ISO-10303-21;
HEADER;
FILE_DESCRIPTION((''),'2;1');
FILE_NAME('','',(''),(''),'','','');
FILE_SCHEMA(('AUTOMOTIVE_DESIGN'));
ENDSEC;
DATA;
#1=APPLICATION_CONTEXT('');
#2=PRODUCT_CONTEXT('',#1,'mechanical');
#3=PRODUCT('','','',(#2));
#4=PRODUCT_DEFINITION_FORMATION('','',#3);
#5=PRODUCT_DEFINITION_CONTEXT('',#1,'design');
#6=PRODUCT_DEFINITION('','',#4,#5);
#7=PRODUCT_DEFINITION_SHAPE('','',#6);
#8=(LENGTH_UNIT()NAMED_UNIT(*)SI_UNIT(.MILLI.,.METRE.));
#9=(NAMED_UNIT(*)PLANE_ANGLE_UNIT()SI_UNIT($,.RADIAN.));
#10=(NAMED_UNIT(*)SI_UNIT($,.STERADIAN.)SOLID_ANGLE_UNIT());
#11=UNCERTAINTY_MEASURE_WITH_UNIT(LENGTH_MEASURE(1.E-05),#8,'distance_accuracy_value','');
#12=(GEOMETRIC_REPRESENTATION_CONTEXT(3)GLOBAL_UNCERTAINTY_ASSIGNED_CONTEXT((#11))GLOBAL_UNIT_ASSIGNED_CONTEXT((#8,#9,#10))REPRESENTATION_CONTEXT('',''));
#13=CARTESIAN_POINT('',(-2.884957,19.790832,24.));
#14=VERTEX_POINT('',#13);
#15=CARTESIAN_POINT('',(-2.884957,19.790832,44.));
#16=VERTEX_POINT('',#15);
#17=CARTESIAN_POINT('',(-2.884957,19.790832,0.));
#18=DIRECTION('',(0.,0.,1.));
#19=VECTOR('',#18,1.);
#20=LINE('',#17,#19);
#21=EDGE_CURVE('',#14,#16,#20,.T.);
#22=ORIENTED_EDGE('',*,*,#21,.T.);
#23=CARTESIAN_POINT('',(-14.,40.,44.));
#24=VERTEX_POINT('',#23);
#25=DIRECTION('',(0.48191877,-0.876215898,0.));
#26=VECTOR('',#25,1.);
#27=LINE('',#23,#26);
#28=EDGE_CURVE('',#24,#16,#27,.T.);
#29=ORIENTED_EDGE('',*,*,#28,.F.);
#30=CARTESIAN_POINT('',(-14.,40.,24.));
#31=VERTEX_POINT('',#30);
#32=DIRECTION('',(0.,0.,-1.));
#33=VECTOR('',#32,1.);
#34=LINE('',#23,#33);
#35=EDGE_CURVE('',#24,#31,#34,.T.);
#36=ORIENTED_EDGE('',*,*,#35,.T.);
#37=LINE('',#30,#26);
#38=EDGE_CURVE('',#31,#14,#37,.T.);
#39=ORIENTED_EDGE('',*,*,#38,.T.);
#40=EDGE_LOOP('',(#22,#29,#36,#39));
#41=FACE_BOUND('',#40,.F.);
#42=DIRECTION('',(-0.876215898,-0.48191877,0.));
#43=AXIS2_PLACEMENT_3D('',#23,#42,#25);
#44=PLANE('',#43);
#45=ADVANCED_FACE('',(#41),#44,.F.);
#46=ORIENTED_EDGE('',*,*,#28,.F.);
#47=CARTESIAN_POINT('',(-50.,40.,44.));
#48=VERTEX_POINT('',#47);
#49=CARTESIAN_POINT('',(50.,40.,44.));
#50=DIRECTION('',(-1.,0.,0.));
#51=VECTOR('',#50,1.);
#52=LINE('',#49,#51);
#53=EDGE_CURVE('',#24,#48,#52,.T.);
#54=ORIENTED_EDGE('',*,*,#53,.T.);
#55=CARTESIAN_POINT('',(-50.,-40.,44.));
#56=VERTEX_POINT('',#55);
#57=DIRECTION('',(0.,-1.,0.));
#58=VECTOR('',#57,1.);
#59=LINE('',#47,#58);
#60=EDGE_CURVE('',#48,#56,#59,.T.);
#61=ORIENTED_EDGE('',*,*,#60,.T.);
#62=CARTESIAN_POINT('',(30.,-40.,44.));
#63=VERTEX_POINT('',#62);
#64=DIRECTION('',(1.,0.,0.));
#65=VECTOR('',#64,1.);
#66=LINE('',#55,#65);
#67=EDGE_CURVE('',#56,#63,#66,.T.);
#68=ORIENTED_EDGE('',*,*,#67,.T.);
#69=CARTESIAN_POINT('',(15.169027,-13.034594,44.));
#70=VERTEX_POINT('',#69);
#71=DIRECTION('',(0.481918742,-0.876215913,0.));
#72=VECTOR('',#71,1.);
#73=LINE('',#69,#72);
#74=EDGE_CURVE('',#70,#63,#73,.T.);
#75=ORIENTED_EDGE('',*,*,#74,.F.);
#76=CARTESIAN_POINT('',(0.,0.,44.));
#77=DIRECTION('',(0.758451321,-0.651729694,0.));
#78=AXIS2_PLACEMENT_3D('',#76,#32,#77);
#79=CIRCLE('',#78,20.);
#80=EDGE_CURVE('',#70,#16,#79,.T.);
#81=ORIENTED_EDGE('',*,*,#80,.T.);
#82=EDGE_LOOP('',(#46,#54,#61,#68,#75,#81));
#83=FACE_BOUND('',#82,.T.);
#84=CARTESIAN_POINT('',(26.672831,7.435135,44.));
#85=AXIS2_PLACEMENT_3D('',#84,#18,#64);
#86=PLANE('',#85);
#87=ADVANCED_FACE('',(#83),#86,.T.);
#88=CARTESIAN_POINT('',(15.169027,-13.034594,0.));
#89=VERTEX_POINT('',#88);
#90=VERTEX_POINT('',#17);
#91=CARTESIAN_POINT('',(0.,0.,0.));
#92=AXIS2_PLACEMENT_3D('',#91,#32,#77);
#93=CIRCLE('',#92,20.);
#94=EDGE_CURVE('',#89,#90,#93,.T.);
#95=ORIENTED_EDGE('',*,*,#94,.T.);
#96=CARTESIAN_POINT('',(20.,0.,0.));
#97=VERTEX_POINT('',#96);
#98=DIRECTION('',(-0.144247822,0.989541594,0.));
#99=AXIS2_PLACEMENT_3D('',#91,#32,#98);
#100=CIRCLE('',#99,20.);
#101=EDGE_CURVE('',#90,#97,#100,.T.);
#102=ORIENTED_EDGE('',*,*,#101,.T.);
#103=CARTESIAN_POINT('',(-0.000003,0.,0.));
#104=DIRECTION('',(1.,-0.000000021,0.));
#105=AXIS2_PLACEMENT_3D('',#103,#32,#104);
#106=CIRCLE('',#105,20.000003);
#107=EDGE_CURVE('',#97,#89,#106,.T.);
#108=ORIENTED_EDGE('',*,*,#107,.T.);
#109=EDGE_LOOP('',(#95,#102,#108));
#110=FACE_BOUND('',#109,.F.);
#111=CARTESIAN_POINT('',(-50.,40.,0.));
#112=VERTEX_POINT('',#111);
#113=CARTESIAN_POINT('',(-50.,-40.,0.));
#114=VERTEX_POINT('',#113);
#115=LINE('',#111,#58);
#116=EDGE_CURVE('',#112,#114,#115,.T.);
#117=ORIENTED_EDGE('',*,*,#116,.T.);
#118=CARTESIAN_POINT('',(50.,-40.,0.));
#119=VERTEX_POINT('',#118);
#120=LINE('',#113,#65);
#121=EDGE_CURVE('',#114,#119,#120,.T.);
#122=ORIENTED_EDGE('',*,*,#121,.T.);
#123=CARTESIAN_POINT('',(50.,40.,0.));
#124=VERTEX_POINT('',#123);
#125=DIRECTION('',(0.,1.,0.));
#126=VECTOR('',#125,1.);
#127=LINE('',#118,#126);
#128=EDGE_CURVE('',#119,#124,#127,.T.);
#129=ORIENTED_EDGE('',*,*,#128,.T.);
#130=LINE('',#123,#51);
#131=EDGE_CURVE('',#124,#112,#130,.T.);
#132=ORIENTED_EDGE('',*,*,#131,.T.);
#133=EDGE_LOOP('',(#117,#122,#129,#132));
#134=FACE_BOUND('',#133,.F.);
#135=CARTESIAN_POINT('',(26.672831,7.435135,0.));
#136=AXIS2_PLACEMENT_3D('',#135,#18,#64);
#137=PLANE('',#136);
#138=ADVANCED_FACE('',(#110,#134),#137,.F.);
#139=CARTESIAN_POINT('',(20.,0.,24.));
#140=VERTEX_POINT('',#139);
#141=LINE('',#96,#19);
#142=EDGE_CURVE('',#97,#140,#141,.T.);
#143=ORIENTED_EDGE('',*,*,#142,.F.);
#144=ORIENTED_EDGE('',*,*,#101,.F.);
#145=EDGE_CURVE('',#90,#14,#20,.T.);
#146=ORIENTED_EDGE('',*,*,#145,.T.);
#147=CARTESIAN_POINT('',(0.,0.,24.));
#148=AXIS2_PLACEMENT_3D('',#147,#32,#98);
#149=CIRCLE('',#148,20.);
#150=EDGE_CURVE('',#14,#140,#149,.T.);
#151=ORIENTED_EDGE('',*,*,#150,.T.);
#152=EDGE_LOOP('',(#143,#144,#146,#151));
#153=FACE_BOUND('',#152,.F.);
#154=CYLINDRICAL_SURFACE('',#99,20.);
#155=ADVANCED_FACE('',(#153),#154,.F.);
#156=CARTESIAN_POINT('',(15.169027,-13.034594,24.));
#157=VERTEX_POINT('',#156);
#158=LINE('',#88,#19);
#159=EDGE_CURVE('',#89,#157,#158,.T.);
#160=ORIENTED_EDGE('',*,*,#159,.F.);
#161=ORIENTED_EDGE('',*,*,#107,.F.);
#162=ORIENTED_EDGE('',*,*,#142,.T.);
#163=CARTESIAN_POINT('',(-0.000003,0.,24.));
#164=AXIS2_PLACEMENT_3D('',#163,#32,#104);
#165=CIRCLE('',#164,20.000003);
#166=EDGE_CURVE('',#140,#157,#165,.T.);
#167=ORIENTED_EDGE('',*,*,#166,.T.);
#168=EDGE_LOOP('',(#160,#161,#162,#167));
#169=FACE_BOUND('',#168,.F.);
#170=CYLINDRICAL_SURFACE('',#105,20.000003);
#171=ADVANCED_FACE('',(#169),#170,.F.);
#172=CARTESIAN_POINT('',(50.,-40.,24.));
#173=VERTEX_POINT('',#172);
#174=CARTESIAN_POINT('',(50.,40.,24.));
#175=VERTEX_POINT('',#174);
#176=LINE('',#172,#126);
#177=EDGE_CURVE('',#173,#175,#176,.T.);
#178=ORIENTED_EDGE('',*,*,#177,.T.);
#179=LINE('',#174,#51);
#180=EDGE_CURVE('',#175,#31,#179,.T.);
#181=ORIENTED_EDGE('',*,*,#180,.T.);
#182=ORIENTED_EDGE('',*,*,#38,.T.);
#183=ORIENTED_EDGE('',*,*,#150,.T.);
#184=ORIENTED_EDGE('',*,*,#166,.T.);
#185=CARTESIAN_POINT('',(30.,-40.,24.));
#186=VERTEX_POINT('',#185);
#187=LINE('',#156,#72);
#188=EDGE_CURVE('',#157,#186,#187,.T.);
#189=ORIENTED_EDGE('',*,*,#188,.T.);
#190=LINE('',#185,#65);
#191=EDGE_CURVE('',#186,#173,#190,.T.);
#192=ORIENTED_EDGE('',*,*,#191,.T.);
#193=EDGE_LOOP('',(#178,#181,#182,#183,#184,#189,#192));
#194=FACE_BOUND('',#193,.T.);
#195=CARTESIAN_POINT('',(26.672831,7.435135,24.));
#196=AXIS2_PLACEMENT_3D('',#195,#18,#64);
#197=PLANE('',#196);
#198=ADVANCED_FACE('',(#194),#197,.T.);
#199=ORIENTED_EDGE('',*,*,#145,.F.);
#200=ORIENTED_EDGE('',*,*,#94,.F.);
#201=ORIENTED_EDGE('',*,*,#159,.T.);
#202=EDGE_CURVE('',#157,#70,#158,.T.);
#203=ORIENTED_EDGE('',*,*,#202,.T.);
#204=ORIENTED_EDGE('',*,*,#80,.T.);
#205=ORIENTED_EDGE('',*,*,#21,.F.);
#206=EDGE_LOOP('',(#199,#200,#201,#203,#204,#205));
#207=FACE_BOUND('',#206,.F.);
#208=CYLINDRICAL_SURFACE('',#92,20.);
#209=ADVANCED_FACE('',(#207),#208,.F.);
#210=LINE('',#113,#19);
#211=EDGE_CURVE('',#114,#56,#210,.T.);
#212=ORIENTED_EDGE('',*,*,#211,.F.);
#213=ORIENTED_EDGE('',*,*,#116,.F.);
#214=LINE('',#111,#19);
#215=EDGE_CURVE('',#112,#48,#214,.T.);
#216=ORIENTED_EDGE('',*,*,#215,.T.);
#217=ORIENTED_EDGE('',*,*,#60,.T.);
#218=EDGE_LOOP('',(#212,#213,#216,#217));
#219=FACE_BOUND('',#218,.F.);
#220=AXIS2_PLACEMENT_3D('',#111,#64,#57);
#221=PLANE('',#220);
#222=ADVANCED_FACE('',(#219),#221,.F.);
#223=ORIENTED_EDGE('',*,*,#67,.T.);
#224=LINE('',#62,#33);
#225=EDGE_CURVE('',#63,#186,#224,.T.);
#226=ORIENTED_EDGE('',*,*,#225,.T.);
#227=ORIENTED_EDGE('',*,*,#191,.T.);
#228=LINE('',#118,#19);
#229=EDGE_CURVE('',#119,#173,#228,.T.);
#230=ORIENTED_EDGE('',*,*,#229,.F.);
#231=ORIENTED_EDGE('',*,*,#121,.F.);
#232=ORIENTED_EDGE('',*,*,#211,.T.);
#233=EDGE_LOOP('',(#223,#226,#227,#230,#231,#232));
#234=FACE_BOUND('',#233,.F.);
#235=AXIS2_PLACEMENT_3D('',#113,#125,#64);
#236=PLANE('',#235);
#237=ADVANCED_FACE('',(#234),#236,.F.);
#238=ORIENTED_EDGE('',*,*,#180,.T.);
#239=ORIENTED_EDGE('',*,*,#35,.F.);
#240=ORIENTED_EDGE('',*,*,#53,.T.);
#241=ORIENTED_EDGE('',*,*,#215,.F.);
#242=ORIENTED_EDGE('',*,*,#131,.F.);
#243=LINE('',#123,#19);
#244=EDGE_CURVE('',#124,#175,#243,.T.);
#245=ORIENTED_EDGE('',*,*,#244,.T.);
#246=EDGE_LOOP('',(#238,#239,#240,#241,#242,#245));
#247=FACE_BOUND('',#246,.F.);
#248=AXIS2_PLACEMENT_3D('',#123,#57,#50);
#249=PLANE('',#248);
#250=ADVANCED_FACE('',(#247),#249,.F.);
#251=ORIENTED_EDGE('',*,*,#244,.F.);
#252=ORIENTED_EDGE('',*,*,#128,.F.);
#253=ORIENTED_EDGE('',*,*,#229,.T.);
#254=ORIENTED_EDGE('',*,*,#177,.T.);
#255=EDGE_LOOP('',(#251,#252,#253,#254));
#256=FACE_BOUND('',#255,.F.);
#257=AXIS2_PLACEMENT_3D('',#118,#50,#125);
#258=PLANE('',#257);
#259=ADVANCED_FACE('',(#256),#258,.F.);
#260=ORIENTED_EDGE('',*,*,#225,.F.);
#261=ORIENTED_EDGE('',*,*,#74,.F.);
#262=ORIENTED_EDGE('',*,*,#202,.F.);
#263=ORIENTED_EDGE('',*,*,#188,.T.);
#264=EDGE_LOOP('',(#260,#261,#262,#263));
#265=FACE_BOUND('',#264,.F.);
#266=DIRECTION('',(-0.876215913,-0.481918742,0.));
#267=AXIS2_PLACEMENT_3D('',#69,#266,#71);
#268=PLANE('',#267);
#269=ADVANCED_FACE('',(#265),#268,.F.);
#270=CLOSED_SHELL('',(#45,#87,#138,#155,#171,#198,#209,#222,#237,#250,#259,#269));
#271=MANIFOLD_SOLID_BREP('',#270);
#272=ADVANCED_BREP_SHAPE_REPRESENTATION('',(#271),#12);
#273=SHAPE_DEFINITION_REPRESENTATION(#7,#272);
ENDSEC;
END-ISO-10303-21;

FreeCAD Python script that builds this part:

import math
import FreeCAD as App
import Part
import Sketcher

V = App.Vector
Q = App.Units.Quantity

doc = App.newDocument("Part")
body = doc.addObject("PartDesign::Body", "Body")

# Sketch on XY plane
sketch1 = doc.addObject("Sketcher::SketchObject", "Sketch")
body.addObject(sketch1)
sketch1.AttachmentSupport = (doc.XY_Plane, [""])
sketch1.MapMode = "FlatFace"
sketch1.addGeometry([
    Part.LineSegment(V(50, -40, 0), V(50, 40, 0)),  # 0
    Part.LineSegment(V(50, 40, 0), V(-50, 40, 0)),  # 1
    Part.LineSegment(V(-50, 40, 0), V(-50, -40, 0)),  # 2
    Part.LineSegment(V(-50, -40, 0), V(50, -40, 0)),  # 3
    Part.ArcOfCircle(Part.Circle(V(0, 0, 0), V(0, 0, 1), 20), math.radians(0), math.radians(98)),  # 4
    Part.ArcOfCircle(Part.Circle(V(0, 0, 0), V(0, 0, 1), 20), math.radians(-41), math.radians(0)),  # 5
    Part.ArcOfCircle(Part.Circle(V(0, 0, 0), V(0, 0, 1), 20), math.radians(98), math.radians(319)),  # 6
], False)
sketch1.addConstraint([
    Sketcher.Constraint("Coincident", 0, 2, 1, 1),
    Sketcher.Constraint("Coincident", 1, 2, 2, 1),
    Sketcher.Constraint("Coincident", 2, 2, 3, 1),
    Sketcher.Constraint("Coincident", 3, 2, 0, 1),
    Sketcher.Constraint("Tangent", 4, 1, 5, 2),
    Sketcher.Constraint("Tangent", 5, 1, 6, 2),
    Sketcher.Constraint("Tangent", 6, 1, 4, 2),
    Sketcher.Constraint("Vertical", 0),
    Sketcher.Constraint("Horizontal", 1),
    Sketcher.Constraint("Vertical", 2),
    Sketcher.Constraint("Horizontal", 3),
    Sketcher.Constraint("Coincident", 4, 3, -1, 1),
    Sketcher.Constraint("Symmetric", 0, 2, 2, 2, -1, 1),
    Sketcher.Constraint("PointOnObject", 4, 1, -1),
    Sketcher.Constraint("Radius", 4, Q("20 mm")),
    Sketcher.Constraint("DistanceX", 1, 2, 1, 1, Q("100 mm")),
    Sketcher.Constraint("DistanceY", 0, 1, 0, 2, Q("80 mm")),
    Sketcher.Constraint("DistanceX", 5, 3, 5, 1, Q("15.16903 mm")),
    Sketcher.Constraint("DistanceY", 5, 3, 6, 1, Q("19.790832 mm")),
])
pad1 = doc.addObject("PartDesign::Pad", "Pad")
body.addObject(pad1)
pad1.Profile = sketch1
pad1.Length = 44

# Sketch on XY plane
sketch2 = doc.addObject("Sketcher::SketchObject", "Sketch001")
body.addObject(sketch2)
sketch2.AttachmentSupport = (doc.XY_Plane, [""])
sketch2.MapMode = "FlatFace"
sketch2.AttachmentOffset = App.Placement(V(0, 0, 44), App.Rotation())
sketch2.addGeometry([
    Part.LineSegment(V(50, 40, 0), V(-14, 40, 0)),  # 0
    Part.LineSegment(V(-14, 40, 0), V(-3, 20, 0)),  # 1
    Part.ArcOfCircle(Part.Circle(V(0, 0, 0), V(0, 0, 1), 20), math.radians(0), math.radians(98)),  # 2
    Part.ArcOfCircle(Part.Circle(V(0, 0, 0), V(0, 0, 1), 20), math.radians(-41), math.radians(0)),  # 3
    Part.LineSegment(V(15, -13, 0), V(30, -40, 0)),  # 4
    Part.LineSegment(V(30, -40, 0), V(50, -40, 0)),  # 5
    Part.LineSegment(V(50, -40, 0), V(50, 40, 0)),  # 6
], False)
sketch2.addConstraint([
    Sketcher.Constraint("Coincident", 0, 2, 1, 1),
    Sketcher.Constraint("Coincident", 1, 2, 2, 2),
    Sketcher.Constraint("Tangent", 2, 1, 3, 2),
    Sketcher.Constraint("Coincident", 3, 1, 4, 1),
    Sketcher.Constraint("Coincident", 4, 2, 5, 1),
    Sketcher.Constraint("Coincident", 5, 2, 6, 1),
    Sketcher.Constraint("Coincident", 6, 2, 0, 1),
    Sketcher.Constraint("Horizontal", 0),
    Sketcher.Constraint("Horizontal", 5),
    Sketcher.Constraint("Vertical", 6),
    Sketcher.Constraint("Coincident", 2, 3, -1, 1),
    Sketcher.Constraint("PointOnObject", 2, 1, -1),
    Sketcher.Constraint("Parallel", 1, 4),
    Sketcher.Constraint("Radius", 2, Q("20 mm")),
    Sketcher.Constraint("DistanceX", 0, 2, 0, 1, Q("64 mm")),
    Sketcher.Constraint("DistanceX", 5, 1, 5, 2, Q("20 mm")),
    Sketcher.Constraint("DistanceY", 6, 1, 6, 2, Q("80 mm")),
    Sketcher.Constraint("DistanceX", 0, 2, -1, 1, Q("14 mm")),
    Sketcher.Constraint("DistanceY", -1, 1, 0, 2, Q("40 mm")),
    Sketcher.Constraint("Radius", 3, Q("20.000003 mm")),
    Sketcher.Constraint("Distance", 4, Q("30.774842 mm")),
])
pocket1 = doc.addObject("PartDesign::Pocket", "Pocket")
body.addObject(pocket1)
pocket1.Profile = sketch2
pocket1.Length = 20

doc.recompute()
